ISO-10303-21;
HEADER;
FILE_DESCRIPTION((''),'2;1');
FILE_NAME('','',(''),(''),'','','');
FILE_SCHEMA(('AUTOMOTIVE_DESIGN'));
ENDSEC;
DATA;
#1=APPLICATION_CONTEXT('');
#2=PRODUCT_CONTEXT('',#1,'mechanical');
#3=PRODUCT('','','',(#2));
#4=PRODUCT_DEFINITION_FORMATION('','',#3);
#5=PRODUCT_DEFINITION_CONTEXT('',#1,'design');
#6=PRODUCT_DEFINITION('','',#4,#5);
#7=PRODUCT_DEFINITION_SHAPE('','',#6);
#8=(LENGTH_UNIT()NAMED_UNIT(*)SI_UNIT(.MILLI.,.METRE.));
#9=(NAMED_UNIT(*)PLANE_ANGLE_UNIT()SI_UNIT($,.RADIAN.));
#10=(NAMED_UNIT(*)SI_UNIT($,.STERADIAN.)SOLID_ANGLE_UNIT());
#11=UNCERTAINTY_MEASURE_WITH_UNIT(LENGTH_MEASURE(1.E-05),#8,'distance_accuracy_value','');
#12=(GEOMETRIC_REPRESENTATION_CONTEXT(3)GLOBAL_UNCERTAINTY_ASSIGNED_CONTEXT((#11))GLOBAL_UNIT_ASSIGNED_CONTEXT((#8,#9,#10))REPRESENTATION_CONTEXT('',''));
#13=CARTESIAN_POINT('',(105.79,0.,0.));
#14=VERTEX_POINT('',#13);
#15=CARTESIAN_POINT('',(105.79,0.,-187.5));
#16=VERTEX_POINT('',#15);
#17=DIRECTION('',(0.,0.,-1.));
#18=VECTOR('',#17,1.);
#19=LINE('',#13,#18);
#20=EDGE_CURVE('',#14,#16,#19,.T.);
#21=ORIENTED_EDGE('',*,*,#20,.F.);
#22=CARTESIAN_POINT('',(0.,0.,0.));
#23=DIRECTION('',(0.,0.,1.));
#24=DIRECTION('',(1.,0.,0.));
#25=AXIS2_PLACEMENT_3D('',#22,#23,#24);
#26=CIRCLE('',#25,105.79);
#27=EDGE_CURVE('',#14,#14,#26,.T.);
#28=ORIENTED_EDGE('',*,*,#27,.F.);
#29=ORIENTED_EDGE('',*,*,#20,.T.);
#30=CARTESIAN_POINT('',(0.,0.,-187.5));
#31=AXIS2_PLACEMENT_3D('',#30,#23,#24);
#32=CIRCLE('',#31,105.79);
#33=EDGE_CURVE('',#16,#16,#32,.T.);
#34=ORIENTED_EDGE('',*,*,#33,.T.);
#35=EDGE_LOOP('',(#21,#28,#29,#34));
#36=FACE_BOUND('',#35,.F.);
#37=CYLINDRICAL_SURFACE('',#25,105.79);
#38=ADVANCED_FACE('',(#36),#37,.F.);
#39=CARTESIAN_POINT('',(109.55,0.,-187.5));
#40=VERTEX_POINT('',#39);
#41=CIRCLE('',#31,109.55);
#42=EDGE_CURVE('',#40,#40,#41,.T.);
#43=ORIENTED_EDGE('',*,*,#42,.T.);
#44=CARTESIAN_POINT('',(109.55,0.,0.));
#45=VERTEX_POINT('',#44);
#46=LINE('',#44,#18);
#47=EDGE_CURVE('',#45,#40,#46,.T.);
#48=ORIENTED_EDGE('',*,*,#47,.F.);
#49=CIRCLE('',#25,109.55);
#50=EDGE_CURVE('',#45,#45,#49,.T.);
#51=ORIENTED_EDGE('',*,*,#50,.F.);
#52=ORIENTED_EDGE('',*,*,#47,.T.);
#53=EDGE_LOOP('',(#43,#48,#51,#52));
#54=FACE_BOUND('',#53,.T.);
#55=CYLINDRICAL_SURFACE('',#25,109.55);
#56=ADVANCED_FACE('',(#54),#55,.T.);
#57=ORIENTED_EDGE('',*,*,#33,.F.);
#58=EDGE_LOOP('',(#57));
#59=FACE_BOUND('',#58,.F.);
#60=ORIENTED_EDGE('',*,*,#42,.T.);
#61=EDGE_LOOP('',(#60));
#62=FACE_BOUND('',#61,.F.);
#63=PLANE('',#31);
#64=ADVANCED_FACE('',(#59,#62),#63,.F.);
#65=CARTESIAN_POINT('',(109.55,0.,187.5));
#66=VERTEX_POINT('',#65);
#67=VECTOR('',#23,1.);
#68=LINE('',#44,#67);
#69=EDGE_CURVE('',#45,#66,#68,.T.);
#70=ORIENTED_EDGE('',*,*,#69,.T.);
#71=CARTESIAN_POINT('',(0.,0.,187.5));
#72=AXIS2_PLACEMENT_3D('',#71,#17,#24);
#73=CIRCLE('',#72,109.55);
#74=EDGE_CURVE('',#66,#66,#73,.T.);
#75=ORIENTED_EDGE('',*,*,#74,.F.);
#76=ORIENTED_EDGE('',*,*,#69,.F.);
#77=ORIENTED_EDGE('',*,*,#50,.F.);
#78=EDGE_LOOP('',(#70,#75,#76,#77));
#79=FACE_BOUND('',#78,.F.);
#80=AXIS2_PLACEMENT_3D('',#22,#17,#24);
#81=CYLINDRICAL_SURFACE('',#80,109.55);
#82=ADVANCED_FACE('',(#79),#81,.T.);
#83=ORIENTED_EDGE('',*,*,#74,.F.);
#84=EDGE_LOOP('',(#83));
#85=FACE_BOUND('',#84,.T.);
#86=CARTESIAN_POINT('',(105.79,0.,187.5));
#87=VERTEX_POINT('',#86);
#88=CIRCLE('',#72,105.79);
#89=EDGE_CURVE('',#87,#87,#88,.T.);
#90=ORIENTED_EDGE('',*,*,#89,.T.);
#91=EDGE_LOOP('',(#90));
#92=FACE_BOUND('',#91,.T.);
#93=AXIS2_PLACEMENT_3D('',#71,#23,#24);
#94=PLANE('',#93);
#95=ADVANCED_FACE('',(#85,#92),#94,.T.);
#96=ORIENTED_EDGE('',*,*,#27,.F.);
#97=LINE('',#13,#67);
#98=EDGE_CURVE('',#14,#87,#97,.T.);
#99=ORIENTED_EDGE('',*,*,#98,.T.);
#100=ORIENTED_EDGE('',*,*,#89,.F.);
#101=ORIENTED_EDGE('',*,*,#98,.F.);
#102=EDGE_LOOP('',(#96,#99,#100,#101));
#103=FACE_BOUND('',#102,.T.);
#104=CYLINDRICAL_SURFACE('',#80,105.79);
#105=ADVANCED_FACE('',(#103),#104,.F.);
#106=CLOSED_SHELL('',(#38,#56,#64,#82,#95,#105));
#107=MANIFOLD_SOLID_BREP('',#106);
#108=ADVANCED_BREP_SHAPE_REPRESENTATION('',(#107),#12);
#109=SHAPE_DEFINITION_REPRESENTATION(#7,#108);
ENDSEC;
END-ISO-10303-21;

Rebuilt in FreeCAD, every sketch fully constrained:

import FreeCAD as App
import Part
import Sketcher
from FreeCAD import Vector

doc = App.newDocument("Part")
body = doc.addObject("PartDesign::Body", "Body")

# Sketch on XY plane
sketch1 = doc.addObject("Sketcher::SketchObject", "Sketch")
body.addObject(sketch1)
sketch1.AttachmentSupport = (doc.XY_Plane, [""])
sketch1.MapMode = "FlatFace"
sketch1.addGeometry([
    Part.Circle(Vector(0, 0, 0), Vector(0, 0, 1), 109.55),
    Part.Circle(Vector(0, 0, 0), Vector(0, 0, 1), 105.79),
], False)
sketch1.addConstraint([
    Sketcher.Constraint("Coincident", 0, 3, -1, 1),
    Sketcher.Constraint("Coincident", 1, 3, -1, 1),
    Sketcher.Constraint("Diameter", 0, 219.1),
    Sketcher.Constraint("Diameter", 1, 211.58),
])
pad1 = doc.addObject("PartDesign::Pad", "Pad")
body.addObject(pad1)
pad1.Profile = sketch1
pad1.Length = 375
pad1.Midplane = True

doc.recompute()
